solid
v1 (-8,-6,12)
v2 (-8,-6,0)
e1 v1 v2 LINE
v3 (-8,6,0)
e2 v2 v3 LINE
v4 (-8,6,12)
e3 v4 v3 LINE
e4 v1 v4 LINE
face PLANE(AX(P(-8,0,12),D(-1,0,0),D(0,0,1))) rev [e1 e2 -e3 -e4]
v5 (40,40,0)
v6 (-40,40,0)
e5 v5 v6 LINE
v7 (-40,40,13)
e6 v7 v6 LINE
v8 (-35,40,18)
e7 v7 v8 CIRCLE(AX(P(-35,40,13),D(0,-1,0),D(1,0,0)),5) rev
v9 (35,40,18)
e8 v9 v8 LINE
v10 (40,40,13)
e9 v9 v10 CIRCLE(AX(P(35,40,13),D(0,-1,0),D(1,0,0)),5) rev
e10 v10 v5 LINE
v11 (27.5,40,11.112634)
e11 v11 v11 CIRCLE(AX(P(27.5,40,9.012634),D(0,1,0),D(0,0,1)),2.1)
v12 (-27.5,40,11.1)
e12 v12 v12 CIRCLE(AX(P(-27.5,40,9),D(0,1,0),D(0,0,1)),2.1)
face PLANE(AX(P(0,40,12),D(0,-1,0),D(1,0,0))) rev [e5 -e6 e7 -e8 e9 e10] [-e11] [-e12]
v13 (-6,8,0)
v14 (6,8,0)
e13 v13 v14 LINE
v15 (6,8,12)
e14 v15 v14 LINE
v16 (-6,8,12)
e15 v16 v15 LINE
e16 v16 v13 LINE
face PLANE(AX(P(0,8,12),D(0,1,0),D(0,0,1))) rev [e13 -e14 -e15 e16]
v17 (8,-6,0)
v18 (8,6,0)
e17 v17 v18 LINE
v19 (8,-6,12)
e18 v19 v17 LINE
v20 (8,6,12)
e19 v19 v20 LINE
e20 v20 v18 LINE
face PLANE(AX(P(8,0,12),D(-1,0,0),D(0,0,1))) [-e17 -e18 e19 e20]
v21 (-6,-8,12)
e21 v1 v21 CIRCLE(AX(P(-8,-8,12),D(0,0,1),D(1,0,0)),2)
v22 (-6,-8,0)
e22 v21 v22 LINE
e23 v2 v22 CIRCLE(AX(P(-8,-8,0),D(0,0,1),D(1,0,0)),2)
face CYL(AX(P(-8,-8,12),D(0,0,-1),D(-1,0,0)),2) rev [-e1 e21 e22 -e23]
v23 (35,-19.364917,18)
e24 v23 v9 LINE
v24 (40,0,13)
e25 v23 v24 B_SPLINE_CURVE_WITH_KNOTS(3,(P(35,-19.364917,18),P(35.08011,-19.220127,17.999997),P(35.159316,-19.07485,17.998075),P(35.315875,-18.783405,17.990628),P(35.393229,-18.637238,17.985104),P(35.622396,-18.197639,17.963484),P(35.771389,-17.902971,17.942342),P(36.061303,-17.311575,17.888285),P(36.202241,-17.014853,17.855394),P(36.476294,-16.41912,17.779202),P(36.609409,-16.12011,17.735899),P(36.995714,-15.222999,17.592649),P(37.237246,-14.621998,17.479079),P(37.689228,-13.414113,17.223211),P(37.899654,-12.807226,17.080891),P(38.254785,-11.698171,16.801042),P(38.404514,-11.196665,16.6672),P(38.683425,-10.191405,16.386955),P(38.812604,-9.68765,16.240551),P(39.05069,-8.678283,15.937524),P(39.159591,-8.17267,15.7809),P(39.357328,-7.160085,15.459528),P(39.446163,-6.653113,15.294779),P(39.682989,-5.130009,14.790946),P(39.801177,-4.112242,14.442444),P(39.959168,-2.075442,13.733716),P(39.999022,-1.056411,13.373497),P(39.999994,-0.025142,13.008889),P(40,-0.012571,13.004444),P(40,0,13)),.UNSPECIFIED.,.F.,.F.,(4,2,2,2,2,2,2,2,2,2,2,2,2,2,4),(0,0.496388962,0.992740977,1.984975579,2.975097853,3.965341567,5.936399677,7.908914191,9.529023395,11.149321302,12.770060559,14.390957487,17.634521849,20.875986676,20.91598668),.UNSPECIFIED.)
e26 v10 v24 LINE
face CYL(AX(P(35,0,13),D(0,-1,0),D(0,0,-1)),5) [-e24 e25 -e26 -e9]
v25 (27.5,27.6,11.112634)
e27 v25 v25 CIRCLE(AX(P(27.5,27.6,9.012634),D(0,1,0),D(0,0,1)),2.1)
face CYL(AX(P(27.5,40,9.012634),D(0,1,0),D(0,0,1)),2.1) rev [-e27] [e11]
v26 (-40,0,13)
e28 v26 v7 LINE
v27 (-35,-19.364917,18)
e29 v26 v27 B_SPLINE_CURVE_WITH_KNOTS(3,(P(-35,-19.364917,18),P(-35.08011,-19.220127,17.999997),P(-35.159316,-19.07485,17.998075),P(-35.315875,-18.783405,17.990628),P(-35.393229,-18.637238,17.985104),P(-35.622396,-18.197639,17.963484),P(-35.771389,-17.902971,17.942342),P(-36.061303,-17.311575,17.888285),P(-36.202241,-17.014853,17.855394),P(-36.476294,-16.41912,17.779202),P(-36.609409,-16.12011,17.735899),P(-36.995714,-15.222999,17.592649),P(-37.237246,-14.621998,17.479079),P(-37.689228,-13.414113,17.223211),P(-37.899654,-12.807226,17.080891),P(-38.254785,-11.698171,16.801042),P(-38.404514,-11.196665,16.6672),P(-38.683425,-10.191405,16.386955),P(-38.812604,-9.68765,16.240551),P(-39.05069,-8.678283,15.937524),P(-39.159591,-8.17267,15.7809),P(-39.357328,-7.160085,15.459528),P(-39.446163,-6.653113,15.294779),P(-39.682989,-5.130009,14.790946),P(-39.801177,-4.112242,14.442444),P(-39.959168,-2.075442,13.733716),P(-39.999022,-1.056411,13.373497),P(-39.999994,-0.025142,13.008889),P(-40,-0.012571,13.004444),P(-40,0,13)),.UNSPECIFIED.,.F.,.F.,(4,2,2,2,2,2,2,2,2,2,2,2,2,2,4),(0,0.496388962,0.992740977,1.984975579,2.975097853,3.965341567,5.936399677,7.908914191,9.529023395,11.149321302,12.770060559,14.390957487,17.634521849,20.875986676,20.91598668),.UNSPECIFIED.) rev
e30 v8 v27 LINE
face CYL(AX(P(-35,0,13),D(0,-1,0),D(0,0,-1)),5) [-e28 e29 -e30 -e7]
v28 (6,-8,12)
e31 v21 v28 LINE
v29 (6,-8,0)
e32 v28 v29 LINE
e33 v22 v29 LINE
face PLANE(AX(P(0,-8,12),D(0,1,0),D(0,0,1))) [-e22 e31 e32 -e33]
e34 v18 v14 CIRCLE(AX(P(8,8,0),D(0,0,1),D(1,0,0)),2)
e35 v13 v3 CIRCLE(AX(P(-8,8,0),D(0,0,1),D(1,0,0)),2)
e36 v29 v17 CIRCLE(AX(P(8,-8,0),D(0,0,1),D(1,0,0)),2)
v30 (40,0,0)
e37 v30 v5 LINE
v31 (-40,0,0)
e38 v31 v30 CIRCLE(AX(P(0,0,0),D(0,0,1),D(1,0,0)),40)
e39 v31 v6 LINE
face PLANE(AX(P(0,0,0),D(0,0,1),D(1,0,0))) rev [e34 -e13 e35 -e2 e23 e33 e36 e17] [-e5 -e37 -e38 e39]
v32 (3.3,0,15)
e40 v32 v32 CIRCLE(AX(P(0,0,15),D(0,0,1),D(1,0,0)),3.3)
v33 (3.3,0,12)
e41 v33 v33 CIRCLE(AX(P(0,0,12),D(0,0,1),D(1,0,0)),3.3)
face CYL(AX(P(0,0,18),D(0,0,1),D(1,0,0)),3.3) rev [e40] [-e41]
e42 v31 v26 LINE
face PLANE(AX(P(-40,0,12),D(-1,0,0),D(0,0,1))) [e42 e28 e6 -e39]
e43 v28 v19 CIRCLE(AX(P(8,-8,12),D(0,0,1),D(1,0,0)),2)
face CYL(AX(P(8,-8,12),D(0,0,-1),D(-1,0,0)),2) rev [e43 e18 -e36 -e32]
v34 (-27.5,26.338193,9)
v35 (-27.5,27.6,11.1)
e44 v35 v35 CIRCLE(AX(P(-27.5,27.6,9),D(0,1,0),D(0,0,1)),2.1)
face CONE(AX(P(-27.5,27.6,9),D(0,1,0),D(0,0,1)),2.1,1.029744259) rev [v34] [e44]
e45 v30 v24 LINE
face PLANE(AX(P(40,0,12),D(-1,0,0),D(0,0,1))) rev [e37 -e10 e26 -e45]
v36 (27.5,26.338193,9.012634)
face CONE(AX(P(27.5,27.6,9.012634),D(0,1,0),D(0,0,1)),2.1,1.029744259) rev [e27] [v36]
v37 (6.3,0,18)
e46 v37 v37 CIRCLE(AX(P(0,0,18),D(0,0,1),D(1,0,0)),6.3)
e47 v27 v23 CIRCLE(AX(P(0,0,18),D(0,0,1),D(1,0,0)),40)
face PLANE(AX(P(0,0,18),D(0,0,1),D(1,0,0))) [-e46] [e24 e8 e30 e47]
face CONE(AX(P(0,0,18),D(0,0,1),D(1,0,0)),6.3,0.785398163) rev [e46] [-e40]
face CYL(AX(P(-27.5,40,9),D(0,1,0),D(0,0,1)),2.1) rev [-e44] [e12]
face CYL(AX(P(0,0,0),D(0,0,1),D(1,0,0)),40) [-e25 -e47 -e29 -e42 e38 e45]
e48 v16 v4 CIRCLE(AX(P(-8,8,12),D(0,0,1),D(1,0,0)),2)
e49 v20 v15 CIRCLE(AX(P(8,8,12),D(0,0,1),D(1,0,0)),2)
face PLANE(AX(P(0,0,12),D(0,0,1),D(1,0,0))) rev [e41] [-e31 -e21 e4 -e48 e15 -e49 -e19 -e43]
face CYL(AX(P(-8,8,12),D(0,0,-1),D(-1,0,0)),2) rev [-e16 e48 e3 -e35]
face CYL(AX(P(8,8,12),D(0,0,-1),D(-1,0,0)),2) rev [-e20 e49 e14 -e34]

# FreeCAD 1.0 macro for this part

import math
import FreeCAD as App
import Part
import Sketcher
from FreeCAD import Vector


def edges_at(feature, points):
    """Names of the edges that pass closest to the given points."""
    edges = feature.Shape.Edges
    near = lambda p: min(range(len(edges)), key=lambda i: edges[i].distToShape(Part.Vertex(*p))[0])
    return sorted({f"Edge{near(p) + 1}" for p in points})


def add_polygon(sketch, points):
    """Adds a closed chain of lines whose ends are joined by coincident constraints."""
    first, n = sketch.GeometryCount, len(points)
    for a, b in zip(points, points[1:] + points[:1]):
        sketch.addGeometry(Part.LineSegment(App.Vector(*a, 0), App.Vector(*b, 0)), False)
    for i in range(n):
        sketch.addConstraint(Sketcher.Constraint("Coincident", first + i, 2, first + (i + 1) % n, 1))

doc = App.newDocument("Part")
body = doc.addObject("PartDesign::Body", "Body")

sketch1 = body.newObject("Sketcher::SketchObject", "Sketch")
sketch1.AttachmentSupport = (doc.getObject("XY_Plane"), [""])
sketch1.MapMode = "FlatFace"
add_polygon(sketch1, [(-40, 40), (-40, -40), (40, -40), (40, 40)])
sketch1.addGeometry(Part.ArcOfCircle(Part.Circle(Vector(8, -8, 0), Vector(0, 0, 1), 2), math.radians(180), math.radians(360)), False)
sketch1.addGeometry(Part.LineSegment(Vector(6, -8, 0), Vector(-6, -8, 0)), False)
sketch1.addGeometry(Part.ArcOfCircle(Part.Circle(Vector(-8, -8, 0), Vector(0, 0, 1), 2), math.radians(90), math.radians(360)), False)
sketch1.addGeometry(Part.LineSegment(Vector(-8, -6, 0), Vector(-8, 6, 0)), False)
sketch1.addGeometry(Part.ArcOfCircle(Part.Circle(Vector(-8, 8, 0), Vector(0, 0, 1), 2), math.radians(0), math.radians(270)), False)
sketch1.addGeometry(Part.LineSegment(Vector(-6, 8, 0), Vector(6, 8, 0)), False)
sketch1.addGeometry(Part.ArcOfCircle(Part.Circle(Vector(8, 8, 0), Vector(0, 0, 1), 2), math.radians(0), math.radians(180)), False)
sketch1.addGeometry(Part.ArcOfCircle(Part.Circle(Vector(8, 8, 0), Vector(0, 0, 1), 2), math.radians(-90), math.radians(0)), False)
sketch1.addGeometry(Part.LineSegment(Vector(8, 6, 0), Vector(8, -6, 0)), False)
sketch1.addGeometry(Part.ArcOfCircle(Part.Circle(Vector(8, -8, 0), Vector(0, 0, 1), 2), math.radians(0), math.radians(90)), False)
sketch1.addConstraint([
    Sketcher.Constraint("Coincident", 4, 1, 5, 1),
    Sketcher.Constraint("Coincident", 5, 2, 6, 2),
    Sketcher.Constraint("Coincident", 6, 1, 7, 1),
    Sketcher.Constraint("Coincident", 7, 2, 8, 2),
    Sketcher.Constraint("Coincident", 8, 1, 9, 1),
    Sketcher.Constraint("Coincident", 9, 2, 10, 2),
    Sketcher.Constraint("Tangent", 10, 1, 11, 2),
    Sketcher.Constraint("Coincident", 11, 1, 12, 1),
    Sketcher.Constraint("Coincident", 12, 2, 13, 2),
    Sketcher.Constraint("Tangent", 13, 1, 4, 2),
    Sketcher.Constraint("Vertical", 0),
    Sketcher.Constraint("Horizontal", 1),
    Sketcher.Constraint("Vertical", 2),
    Sketcher.Constraint("Horizontal", 3),
    Sketcher.Constraint("Horizontal", 5),
    Sketcher.Constraint("Vertical", 7),
    Sketcher.Constraint("Horizontal", 9),
    Sketcher.Constraint("Vertical", 12),
    Sketcher.Constraint("Equal", 4, 6),
    Sketcher.Constraint("Equal", 6, 8),
    Sketcher.Constraint("Equal", 8, 10),
    Sketcher.Constraint("Equal", 10, 11),
    Sketcher.Constraint("Equal", 11, 13),
    Sketcher.Constraint("Symmetric", 4, 3, 8, 3, -1, 1),
    Sketcher.Constraint("Symmetric", 6, 3, 10, 3, -1, 1),
    Sketcher.Constraint("Symmetric", 0, 2, 2, 2, -1, 1),
    Sketcher.Constraint("Symmetric", 4, 3, 6, 3, -2),
    Sketcher.Constraint("Horizontal", 13, 3, 4, 1),
    Sketcher.Constraint("Horizontal", 11, 3, 8, 1),
    Sketcher.Constraint("Horizontal", 9, 2, 10, 1),
    Sketcher.Constraint("Horizontal", 5, 2, 13, 1),
    Sketcher.Constraint("Vertical", 8, 3, 6, 1),
    Sketcher.Constraint("Vertical", 13, 3, 11, 1),
    Sketcher.Constraint("Equal", 3, 0),
    Sketcher.Constraint("Equal", 9, 7),
    Sketcher.Constraint("Radius", 4, 2.0),
    Sketcher.Constraint("DistanceX", 1, 1, 1, 2, 80.0),
    Sketcher.Constraint("DistanceX", 5, 2, 5, 1, 12.0),
])
pad1 = body.newObject("PartDesign::Pad", "Pad")
pad1.Profile = sketch1
pad1.Length = 12

sketch2 = body.newObject("Sketcher::SketchObject", "Sketch001")
sketch2.AttachmentSupport = (doc.getObject("XY_Plane"), [""])
sketch2.MapMode = "FlatFace"
sketch2.AttachmentOffset = App.Placement(Vector(0, 0, 12), App.Rotation())
add_polygon(sketch2, [(-40, 40), (-40, -40), (40, -40), (40, 40)])
sketch2.addGeometry(Part.Circle(Vector(0, 0, 0), Vector(0, 0, 1), 1.5), False)
sketch2.addConstraint([
    Sketcher.Constraint("Vertical", 0),
    Sketcher.Constraint("Horizontal", 1),
    Sketcher.Constraint("Vertical", 2),
    Sketcher.Constraint("Horizontal", 3),
    Sketcher.Constraint("Coincident", 4, 3, -1, 1),
    Sketcher.Constraint("Symmetric", 0, 2, 2, 2, -1, 1),
    Sketcher.Constraint("Equal", 3, 0),
    Sketcher.Constraint("Diameter", 4, 3.0),
    Sketcher.Constraint("DistanceX", 1, 1, 1, 2, 80.0),
])
pad2 = body.newObject("PartDesign::Pad", "Pad001")
pad2.Profile = sketch2
pad2.Length = 6

sketch3 = body.newObject("Sketcher::SketchObject", "Sketch002")
sketch3.AttachmentSupport = (doc.getObject("XY_Plane"), [""])
sketch3.MapMode = "FlatFace"
sketch3.AttachmentOffset = App.Placement(Vector(0, 0, 18), App.Rotation())
sketch3.addGeometry(Part.Circle(Vector(0, 0, 0), Vector(0, 0, 1), 3.3), False)
sketch3.addConstraint([
    Sketcher.Constraint("Coincident", 0, 3, -1, 1),
    Sketcher.Constraint("Diameter", 0, 6.6),
])
doc.recompute()
hole = body.newObject("PartDesign::Hole", "Hole")
hole.Profile = sketch3
hole.ThreadType = "None"
hole.Diameter = 6.6
hole.DepthType = "Dimension"
hole.Depth = 10
hole.DrillPoint = "Angled"
hole.DrillPointAngle = 118
hole.HoleCutType = "Countersink"
hole.HoleCutDiameter = 12.6
hole.HoleCutCountersinkAngle = 90
doc.recompute()

fillet = body.newObject("PartDesign::Fillet", "Fillet")
fillet.Base = (hole, edges_at(hole, [(-40, 0, 18), (40, 0, 18)]))
fillet.Radius = 5

sketch4 = body.newObject("Sketcher::SketchObject", "Sketch003")
sketch4.AttachmentSupport = (doc.getObject("XZ_Plane"), [""])
sketch4.MapMode = "FlatFace"
sketch4.AttachmentOffset = App.Placement(Vector(0, 0, -40), App.Rotation())
sketch4.addGeometry([
    Part.Circle(Vector(-27.5, 9, 0), Vector(0, 0, 1), 2.1),
    Part.Circle(Vector(27.5, 9, 0), Vector(0, 0, 1), 2.1),
], False)
sketch4.addConstraint([
    Sketcher.Constraint("Equal", 0, 1),
    Sketcher.Constraint("Diameter", 0, 4.2),
    Sketcher.Constraint("DistanceY", -1, 1, 0, 3, 9.0),
    Sketcher.Constraint("DistanceX", 0, 3, 1, 3, 55.0),
    Sketcher.Constraint("DistanceX", 0, 3, -1, 1, 27.5),
    Sketcher.Constraint("DistanceY", -1, 1, 1, 3, 9.012634),
])
doc.recompute()
hole2 = body.newObject("PartDesign::Hole", "Hole001")
hole2.Profile = sketch4
hole2.ThreadType = "None"
hole2.Diameter = 4.2
hole2.DepthType = "Dimension"
hole2.Depth = 12.4
hole2.DrillPoint = "Angled"
hole2.DrillPointAngle = 118
hole2.Reversed = True

sketch5 = body.newObject("Sketcher::SketchObject", "Sketch004")
sketch5.AttachmentSupport = (doc.getObject("XY_Plane"), [""])
sketch5.MapMode = "FlatFace"
sketch5.AttachmentOffset = App.Placement(Vector(0, 0, 18), App.Rotation())
sketch5.addGeometry([
    Part.ArcOfCircle(Part.Circle(Vector(0, 0, 0), Vector(0, 0, 1), 40), math.radians(-151), math.radians(-90)),
    Part.ArcOfCircle(Part.Circle(Vector(0, 0, 0), Vector(0, 0, 1), 40), math.radians(-180), math.radians(-151)),
    Part.LineSegment(Vector(-40, 0, 0), Vector(-40, -40, 0)),
    Part.LineSegment(Vector(-40, -40, 0), Vector(0, -40, 0)),
    Part.ArcOfCircle(Part.Circle(Vector(0, 0, 0), Vector(0, 0, 1), 40), math.radians(-90), math.radians(-29)),
    Part.LineSegment(Vector(0, -40, 0), Vector(40, -40, 0)),
    Part.LineSegment(Vector(40, -40, 0), Vector(40, 0, 0)),
    Part.ArcOfCircle(Part.Circle(Vector(0, 0, 0), Vector(0, 0, 1), 40), math.radians(-29), math.radians(0)),
], False)
sketch5.addConstraint([
    Sketcher.Constraint("Tangent", 0, 1, 1, 2),
    Sketcher.Constraint("Tangent", 1, 1, 2, 1),
    Sketcher.Constraint("Coincident", 2, 2, 3, 1),
    Sketcher.Constraint("Tangent", 3, 2, 0, 2),
    Sketcher.Constraint("Tangent", 4, 1, 5, 1),
    Sketcher.Constraint("Coincident", 5, 2, 6, 1),
    Sketcher.Constraint("Tangent", 6, 2, 7, 2),
    Sketcher.Constraint("Tangent", 7, 1, 4, 2),
    Sketcher.Constraint("Vertical", 2),
    Sketcher.Constraint("Horizontal", 3),
    Sketcher.Constraint("Horizontal", 5),
    Sketcher.Constraint("Vertical", 6),
    Sketcher.Constraint("Coincident", 0, 3, -1, 1),
    Sketcher.Constraint("Coincident", 4, 3, -1, 1),
    Sketcher.Constraint("Equal", 0, 1),
    Sketcher.Constraint("Equal", 1, 4),
    Sketcher.Constraint("Equal", 4, 7),
    Sketcher.Constraint("Horizontal", 0, 1, 7, 1),
    Sketcher.Constraint("Radius", 0, 40.0),
    Sketcher.Constraint("DistanceX", 0, 1, -1, 1, 35.0),
])
pocket1 = body.newObject("PartDesign::Pocket", "Pocket")
pocket1.Profile = sketch5
pocket1.Type = "ThroughAll"

doc.recompute()
